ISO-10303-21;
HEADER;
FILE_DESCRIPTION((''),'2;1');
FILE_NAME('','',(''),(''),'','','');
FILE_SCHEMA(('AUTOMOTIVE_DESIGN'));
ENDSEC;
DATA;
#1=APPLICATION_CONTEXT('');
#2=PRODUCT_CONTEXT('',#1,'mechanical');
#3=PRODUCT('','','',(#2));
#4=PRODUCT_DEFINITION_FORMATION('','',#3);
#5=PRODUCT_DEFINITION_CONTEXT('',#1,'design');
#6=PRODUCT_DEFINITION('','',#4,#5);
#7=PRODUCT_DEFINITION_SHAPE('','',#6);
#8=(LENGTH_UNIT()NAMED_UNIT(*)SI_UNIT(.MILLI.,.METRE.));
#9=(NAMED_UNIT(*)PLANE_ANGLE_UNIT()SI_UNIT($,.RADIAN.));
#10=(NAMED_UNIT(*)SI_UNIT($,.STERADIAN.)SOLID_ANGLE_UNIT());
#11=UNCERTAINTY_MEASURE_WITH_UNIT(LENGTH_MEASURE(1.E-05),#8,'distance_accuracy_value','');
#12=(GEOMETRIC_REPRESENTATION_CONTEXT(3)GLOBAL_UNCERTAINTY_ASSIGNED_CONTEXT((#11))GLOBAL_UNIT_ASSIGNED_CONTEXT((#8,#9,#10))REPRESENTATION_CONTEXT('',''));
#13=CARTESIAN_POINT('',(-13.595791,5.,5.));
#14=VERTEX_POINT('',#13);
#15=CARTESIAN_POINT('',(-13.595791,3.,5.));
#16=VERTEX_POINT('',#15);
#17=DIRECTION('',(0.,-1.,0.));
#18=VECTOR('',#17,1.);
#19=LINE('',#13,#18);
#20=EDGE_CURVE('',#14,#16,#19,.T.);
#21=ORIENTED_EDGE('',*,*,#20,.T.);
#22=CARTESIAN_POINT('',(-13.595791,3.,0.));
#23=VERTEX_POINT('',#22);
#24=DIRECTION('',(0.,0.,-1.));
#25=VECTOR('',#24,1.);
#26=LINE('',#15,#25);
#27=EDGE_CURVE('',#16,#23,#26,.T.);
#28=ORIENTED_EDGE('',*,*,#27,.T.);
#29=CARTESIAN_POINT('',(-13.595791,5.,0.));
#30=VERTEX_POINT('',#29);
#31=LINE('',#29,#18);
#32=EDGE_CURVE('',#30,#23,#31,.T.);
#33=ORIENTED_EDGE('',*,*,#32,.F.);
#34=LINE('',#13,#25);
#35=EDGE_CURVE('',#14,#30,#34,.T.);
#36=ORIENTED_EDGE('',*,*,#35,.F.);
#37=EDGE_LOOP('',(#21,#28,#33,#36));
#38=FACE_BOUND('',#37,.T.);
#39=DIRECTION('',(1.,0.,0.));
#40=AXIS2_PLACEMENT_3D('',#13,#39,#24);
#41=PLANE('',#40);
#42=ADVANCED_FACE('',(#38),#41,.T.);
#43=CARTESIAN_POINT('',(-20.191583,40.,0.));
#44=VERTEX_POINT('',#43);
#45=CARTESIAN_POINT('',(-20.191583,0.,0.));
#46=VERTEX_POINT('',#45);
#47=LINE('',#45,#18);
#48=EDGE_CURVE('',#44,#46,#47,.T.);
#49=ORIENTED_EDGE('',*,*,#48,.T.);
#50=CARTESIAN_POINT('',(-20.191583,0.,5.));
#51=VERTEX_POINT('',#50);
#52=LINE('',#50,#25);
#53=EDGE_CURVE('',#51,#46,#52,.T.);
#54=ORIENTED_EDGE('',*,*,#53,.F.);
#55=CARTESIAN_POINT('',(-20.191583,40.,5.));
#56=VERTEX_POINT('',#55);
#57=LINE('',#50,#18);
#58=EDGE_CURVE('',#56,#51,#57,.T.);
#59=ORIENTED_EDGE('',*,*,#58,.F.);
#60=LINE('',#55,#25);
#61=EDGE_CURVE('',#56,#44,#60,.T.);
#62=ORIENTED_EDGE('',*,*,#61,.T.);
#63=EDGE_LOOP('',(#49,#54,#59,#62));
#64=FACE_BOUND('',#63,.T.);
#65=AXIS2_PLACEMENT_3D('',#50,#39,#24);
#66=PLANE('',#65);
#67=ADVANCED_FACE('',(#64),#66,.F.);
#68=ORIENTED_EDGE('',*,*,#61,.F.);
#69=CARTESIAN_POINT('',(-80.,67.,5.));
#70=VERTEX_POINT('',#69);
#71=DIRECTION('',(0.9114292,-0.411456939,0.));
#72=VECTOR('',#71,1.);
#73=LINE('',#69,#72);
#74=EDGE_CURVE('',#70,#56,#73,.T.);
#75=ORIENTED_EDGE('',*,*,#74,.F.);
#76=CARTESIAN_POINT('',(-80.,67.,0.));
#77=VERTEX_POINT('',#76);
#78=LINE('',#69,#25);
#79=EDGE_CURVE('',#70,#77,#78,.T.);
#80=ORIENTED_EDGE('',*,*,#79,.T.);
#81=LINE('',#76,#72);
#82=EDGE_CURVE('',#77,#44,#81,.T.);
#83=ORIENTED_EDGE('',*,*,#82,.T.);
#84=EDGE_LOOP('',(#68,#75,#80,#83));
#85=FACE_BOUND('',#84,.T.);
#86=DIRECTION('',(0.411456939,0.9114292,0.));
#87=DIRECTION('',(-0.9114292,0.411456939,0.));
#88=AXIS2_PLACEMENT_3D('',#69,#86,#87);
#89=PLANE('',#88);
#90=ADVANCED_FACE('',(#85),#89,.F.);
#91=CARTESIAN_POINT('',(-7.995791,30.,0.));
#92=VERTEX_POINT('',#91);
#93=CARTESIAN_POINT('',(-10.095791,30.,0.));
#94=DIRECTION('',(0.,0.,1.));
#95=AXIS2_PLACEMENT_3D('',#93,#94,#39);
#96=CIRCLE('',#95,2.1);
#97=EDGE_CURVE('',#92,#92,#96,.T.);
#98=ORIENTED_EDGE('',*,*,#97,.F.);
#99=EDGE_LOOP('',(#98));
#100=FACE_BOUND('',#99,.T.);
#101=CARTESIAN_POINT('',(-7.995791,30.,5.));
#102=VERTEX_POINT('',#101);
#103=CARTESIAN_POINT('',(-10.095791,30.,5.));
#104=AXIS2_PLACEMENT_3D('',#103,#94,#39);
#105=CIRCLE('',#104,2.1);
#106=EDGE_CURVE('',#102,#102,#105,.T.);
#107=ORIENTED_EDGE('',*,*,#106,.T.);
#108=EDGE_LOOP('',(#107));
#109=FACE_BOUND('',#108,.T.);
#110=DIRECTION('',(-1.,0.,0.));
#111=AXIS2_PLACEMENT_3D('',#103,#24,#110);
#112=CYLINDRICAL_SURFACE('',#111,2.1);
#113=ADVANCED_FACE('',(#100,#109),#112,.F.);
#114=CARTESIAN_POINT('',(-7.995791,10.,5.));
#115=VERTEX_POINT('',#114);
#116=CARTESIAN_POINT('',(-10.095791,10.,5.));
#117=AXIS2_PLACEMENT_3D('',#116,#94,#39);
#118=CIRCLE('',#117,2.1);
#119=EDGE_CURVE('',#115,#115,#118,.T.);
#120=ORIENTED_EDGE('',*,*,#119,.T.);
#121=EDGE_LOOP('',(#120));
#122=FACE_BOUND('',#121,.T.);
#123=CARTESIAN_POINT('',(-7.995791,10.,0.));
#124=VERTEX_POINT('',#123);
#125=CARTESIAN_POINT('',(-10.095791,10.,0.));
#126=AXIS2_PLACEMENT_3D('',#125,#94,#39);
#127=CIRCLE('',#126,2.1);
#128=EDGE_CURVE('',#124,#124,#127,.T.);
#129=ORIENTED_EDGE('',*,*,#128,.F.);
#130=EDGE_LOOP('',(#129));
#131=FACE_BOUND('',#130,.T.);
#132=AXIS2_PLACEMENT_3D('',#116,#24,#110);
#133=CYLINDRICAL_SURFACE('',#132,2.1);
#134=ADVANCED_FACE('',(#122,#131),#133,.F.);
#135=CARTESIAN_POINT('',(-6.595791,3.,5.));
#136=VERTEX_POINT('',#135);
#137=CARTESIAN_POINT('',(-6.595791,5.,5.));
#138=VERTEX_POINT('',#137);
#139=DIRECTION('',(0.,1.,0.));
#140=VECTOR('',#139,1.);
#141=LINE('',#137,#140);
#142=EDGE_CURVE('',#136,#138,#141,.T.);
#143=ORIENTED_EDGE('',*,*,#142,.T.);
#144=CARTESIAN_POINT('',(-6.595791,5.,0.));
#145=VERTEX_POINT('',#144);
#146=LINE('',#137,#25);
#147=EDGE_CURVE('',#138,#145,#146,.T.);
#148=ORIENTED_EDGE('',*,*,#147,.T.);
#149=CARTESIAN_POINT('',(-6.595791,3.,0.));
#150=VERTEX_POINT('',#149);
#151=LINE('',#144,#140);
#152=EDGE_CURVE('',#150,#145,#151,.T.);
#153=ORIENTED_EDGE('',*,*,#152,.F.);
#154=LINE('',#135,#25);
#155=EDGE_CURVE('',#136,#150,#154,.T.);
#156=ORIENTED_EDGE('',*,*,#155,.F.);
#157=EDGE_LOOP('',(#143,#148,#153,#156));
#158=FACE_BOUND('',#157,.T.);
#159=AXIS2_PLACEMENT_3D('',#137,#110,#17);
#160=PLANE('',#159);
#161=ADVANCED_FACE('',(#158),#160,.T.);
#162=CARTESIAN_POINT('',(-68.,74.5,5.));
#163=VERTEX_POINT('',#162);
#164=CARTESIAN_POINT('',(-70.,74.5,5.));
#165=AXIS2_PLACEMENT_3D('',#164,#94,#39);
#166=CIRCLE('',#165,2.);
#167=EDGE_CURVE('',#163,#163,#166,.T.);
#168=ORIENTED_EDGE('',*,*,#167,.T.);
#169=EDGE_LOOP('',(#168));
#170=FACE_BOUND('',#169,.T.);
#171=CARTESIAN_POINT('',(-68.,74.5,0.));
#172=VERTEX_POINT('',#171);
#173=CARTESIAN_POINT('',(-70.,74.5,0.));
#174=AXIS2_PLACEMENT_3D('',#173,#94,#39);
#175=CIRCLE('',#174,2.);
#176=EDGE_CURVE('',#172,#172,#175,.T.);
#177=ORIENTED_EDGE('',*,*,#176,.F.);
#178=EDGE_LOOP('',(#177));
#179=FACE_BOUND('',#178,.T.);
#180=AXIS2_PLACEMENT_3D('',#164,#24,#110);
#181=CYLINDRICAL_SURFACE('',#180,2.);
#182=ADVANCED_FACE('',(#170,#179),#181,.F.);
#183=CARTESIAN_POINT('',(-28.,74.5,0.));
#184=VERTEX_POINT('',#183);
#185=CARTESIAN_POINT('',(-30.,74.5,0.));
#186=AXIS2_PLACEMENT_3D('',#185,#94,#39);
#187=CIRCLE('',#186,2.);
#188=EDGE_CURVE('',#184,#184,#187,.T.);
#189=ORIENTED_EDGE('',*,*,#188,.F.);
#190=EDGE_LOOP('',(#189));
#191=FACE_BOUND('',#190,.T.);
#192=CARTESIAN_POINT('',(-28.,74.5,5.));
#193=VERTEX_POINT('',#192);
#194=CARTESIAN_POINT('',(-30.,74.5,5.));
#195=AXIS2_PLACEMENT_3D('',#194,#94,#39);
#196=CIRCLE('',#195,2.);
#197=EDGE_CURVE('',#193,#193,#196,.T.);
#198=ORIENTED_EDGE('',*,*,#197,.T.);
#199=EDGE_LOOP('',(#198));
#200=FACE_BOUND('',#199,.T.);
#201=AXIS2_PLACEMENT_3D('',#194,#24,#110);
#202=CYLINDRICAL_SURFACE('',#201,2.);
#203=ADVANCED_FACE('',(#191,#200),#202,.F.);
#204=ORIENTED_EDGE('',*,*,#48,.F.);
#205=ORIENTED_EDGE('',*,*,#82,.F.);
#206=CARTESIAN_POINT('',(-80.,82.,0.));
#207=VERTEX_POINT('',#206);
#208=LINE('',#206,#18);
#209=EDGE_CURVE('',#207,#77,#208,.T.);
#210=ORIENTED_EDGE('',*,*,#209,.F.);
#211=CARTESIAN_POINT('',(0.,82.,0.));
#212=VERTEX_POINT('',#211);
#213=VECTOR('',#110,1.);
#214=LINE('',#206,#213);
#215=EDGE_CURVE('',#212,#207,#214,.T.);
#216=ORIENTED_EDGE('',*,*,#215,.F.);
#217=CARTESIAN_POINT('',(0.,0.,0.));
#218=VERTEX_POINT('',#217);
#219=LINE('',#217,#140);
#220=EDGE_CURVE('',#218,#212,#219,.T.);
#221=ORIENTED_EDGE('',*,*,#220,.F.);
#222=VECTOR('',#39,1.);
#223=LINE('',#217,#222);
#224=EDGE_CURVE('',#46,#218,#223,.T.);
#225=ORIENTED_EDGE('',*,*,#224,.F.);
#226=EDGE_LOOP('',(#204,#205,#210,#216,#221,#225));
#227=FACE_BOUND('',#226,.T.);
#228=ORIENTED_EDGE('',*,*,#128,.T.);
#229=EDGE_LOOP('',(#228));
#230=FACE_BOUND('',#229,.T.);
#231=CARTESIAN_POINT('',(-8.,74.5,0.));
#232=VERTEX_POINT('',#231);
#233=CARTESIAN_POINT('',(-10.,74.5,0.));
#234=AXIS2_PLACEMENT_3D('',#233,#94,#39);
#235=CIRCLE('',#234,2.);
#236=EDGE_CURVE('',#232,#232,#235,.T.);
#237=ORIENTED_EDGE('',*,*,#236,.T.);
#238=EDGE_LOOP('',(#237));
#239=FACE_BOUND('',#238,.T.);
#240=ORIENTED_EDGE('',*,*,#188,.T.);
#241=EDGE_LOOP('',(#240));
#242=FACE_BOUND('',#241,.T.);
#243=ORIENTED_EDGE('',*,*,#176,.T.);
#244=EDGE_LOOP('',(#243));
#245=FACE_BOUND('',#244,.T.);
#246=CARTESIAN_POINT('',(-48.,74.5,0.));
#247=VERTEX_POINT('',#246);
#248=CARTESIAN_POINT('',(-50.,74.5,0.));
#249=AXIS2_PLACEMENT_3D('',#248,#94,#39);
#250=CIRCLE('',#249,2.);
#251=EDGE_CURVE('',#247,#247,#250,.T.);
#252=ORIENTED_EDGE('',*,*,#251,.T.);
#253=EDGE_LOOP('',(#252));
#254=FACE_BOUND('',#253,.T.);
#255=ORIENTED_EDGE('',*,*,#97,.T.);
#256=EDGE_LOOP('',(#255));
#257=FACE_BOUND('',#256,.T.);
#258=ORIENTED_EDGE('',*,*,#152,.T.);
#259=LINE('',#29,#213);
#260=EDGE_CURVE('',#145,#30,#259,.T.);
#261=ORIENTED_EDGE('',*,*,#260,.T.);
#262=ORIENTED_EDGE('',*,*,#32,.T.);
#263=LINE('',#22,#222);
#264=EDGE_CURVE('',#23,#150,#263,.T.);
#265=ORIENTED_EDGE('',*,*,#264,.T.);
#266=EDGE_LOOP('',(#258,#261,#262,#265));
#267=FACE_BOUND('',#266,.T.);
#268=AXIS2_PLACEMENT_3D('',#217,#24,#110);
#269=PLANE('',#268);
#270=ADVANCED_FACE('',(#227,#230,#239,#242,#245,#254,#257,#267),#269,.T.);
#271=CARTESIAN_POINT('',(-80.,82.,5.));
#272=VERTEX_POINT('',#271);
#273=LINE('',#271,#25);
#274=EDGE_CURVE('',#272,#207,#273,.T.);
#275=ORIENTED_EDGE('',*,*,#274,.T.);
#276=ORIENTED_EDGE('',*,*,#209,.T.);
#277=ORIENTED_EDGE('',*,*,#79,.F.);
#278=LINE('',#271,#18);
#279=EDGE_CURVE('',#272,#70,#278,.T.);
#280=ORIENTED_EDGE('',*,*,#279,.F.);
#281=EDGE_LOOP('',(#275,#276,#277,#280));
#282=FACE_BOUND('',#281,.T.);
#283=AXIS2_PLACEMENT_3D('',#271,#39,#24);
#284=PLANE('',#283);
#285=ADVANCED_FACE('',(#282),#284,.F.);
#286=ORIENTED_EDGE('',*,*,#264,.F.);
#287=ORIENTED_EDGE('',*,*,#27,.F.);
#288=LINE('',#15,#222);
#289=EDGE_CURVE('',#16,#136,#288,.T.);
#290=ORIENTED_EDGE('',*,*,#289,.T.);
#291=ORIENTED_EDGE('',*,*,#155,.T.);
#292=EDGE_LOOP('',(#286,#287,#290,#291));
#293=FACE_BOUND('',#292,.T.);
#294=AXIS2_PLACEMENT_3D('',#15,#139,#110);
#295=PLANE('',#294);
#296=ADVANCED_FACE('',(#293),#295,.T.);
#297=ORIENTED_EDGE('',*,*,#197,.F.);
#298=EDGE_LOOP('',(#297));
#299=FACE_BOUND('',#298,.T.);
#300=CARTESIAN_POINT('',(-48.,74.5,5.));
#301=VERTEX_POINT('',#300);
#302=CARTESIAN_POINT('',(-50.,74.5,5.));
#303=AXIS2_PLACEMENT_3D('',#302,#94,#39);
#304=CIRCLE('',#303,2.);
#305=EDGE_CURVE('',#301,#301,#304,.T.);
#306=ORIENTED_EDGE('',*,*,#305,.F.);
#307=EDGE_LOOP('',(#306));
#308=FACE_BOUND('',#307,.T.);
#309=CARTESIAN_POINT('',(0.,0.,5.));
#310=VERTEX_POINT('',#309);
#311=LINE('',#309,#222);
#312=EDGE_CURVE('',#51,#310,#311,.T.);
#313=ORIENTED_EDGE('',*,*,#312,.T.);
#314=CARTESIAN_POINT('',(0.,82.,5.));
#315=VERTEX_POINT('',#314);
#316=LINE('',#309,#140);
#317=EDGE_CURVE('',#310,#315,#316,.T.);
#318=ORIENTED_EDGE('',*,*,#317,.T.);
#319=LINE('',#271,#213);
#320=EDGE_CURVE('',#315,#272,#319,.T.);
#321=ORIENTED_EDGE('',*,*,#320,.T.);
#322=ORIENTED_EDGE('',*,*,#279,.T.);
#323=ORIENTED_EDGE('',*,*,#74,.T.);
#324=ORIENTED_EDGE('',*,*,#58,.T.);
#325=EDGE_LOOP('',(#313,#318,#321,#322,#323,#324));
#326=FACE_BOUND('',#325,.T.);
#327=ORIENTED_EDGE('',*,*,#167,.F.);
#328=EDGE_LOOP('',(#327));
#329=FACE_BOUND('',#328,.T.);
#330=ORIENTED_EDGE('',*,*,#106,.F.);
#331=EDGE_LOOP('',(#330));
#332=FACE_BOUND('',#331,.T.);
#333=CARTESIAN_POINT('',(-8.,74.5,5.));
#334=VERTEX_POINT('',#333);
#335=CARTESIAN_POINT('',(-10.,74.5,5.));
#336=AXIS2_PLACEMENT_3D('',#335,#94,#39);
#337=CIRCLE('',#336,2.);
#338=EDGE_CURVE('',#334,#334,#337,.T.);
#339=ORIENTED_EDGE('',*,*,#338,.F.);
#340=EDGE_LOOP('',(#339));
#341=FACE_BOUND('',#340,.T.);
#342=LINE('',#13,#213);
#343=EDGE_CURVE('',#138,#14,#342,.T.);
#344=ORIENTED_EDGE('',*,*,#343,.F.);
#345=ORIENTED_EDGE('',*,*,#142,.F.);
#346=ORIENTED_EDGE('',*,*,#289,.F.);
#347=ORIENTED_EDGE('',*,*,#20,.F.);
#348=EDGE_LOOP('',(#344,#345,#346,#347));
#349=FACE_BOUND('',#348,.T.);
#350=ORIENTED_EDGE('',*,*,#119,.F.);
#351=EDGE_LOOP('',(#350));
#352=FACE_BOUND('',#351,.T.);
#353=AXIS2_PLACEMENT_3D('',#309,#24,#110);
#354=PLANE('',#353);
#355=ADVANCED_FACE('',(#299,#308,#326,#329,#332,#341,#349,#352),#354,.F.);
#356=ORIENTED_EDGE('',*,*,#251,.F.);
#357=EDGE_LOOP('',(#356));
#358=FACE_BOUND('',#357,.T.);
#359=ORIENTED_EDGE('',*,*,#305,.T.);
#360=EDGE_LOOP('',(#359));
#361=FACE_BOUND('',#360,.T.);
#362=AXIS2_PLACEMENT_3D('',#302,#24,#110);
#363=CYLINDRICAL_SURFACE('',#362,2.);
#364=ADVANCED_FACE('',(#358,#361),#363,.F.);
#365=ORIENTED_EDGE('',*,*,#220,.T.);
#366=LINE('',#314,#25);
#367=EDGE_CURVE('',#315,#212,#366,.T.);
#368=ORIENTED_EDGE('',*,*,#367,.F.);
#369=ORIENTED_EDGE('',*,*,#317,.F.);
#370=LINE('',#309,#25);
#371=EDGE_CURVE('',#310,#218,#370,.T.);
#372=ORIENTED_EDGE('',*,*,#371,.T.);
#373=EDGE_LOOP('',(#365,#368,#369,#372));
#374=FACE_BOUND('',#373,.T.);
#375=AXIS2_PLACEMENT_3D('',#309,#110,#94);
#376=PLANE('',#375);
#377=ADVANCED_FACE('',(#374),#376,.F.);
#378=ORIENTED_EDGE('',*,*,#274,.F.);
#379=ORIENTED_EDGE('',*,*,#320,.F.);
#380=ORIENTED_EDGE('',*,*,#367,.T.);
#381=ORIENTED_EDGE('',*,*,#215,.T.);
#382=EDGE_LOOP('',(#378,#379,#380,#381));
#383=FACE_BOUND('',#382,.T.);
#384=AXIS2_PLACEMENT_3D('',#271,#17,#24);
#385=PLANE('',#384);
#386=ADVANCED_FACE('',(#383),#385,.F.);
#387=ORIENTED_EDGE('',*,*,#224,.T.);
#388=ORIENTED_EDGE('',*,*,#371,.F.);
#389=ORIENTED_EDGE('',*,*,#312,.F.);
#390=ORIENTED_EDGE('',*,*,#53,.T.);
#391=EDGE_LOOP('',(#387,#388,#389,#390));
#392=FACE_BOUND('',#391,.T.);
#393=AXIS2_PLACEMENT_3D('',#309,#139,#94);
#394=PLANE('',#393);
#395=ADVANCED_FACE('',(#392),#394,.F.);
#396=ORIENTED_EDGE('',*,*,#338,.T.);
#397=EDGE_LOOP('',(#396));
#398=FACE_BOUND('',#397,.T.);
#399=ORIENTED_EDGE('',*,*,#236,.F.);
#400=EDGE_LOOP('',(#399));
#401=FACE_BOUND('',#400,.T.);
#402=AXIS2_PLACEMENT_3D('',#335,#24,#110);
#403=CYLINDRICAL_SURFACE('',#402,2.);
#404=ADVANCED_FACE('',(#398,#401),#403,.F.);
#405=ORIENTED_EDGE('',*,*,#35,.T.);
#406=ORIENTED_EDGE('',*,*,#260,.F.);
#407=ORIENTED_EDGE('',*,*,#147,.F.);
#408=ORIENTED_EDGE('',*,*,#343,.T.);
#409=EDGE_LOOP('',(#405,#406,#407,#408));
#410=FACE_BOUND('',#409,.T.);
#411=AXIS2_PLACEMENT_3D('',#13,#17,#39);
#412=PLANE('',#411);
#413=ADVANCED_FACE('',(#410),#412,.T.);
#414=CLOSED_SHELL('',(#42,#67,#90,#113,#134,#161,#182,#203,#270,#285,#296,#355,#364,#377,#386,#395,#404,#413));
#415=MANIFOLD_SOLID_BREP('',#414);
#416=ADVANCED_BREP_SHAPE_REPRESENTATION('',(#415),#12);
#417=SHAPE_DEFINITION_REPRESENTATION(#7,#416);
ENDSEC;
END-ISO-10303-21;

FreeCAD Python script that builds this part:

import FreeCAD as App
import Part
import Sketcher
Q = App.Units.Quantity

doc = App.newDocument("Part")
body = doc.addObject("PartDesign::Body", "Body")

# Sketch on XY plane
sketch1 = doc.addObject("Sketcher::SketchObject", "Sketch")
body.addObject(sketch1)
sketch1.AttachmentSupport = (doc.XY_Plane, [""])
sketch1.MapMode = "FlatFace"
sketch1.addGeometry(Part.LineSegment(App.Vector(0, 0, 0), App.Vector(0, 82, 0)), False)
sketch1.addGeometry(Part.LineSegment(App.Vector(0, 82, 0), App.Vector(-80, 82, 0)), False)
sketch1.addGeometry(Part.LineSegment(App.Vector(-80, 82, 0), App.Vector(-80, 67, 0)), False)
sketch1.addGeometry(Part.LineSegment(App.Vector(-80, 67, 0), App.Vector(-20.2, 40, 0)), False)
sketch1.addGeometry(Part.LineSegment(App.Vector(-20.2, 40, 0), App.Vector(-20.2, 0, 0)), False)
sketch1.addGeometry(Part.LineSegment(App.Vector(-20.2, 0, 0), App.Vector(0, 0, 0)), False)
sketch1.addGeometry(Part.LineSegment(App.Vector(-6.6, 3, 0), App.Vector(-13.6, 3, 0)), False)
sketch1.addGeometry(Part.LineSegment(App.Vector(-13.6, 3, 0), App.Vector(-13.6, 5, 0)), False)
sketch1.addGeometry(Part.LineSegment(App.Vector(-13.6, 5, 0), App.Vector(-6.6, 5, 0)), False)
sketch1.addGeometry(Part.LineSegment(App.Vector(-6.6, 5, 0), App.Vector(-6.6, 3, 0)), False)
sketch1.addGeometry(Part.Circle(App.Vector(-10.1, 10, 0), App.Vector(0, 0, 1), 2.1), False)
sketch1.addGeometry(Part.Circle(App.Vector(-10.1, 30, 0), App.Vector(0, 0, 1), 2.1), False)
sketch1.addGeometry(Part.Circle(App.Vector(-70, 74.5, 0), App.Vector(0, 0, 1), 2), False)
sketch1.addGeometry(Part.Circle(App.Vector(-50, 74.5, 0), App.Vector(0, 0, 1), 2), False)
sketch1.addGeometry(Part.Circle(App.Vector(-30, 74.5, 0), App.Vector(0, 0, 1), 2), False)
sketch1.addGeometry(Part.Circle(App.Vector(-10, 74.5, 0), App.Vector(0, 0, 1), 2), False)
sketch1.addConstraint(Sketcher.Constraint("Coincident", 0, 2, 1, 1))
sketch1.addConstraint(Sketcher.Constraint("Coincident", 1, 2, 2, 1))
sketch1.addConstraint(Sketcher.Constraint("Coincident", 2, 2, 3, 1))
sketch1.addConstraint(Sketcher.Constraint("Coincident", 3, 2, 4, 1))
sketch1.addConstraint(Sketcher.Constraint("Coincident", 4, 2, 5, 1))
sketch1.addConstraint(Sketcher.Constraint("Coincident", 5, 2, 0, 1))
sketch1.addConstraint(Sketcher.Constraint("Coincident", 6, 2, 7, 1))
sketch1.addConstraint(Sketcher.Constraint("Coincident", 7, 2, 8, 1))
sketch1.addConstraint(Sketcher.Constraint("Coincident", 8, 2, 9, 1))
sketch1.addConstraint(Sketcher.Constraint("Coincident", 9, 2, 6, 1))
sketch1.addConstraint(Sketcher.Constraint("Vertical", 0))
sketch1.addConstraint(Sketcher.Constraint("Horizontal", 1))
sketch1.addConstraint(Sketcher.Constraint("Vertical", 2))
sketch1.addConstraint(Sketcher.Constraint("Vertical", 4))
sketch1.addConstraint(Sketcher.Constraint("Horizontal", 5))
sketch1.addConstraint(Sketcher.Constraint("Horizontal", 6))
sketch1.addConstraint(Sketcher.Constraint("Vertical", 7))
sketch1.addConstraint(Sketcher.Constraint("Horizontal", 8))
sketch1.addConstraint(Sketcher.Constraint("Vertical", 9))
sketch1.addConstraint(Sketcher.Constraint("Coincident", 5, 2, -1, 1))
sketch1.addConstraint(Sketcher.Constraint("Equal", 10, 11))
sketch1.addConstraint(Sketcher.Constraint("Equal", 12, 13))
sketch1.addConstraint(Sketcher.Constraint("Equal", 13, 14))
sketch1.addConstraint(Sketcher.Constraint("Equal", 14, 15))
sketch1.addConstraint(Sketcher.Constraint("Horizontal", 12, 3, 13, 3))
sketch1.addConstraint(Sketcher.Constraint("Horizontal", 13, 3, 14, 3))
sketch1.addConstraint(Sketcher.Constraint("Horizontal", 14, 3, 15, 3))
sketch1.addConstraint(Sketcher.Constraint("Vertical", 10, 3, 11, 3))
sketch1.addConstraint(Sketcher.Constraint("Diameter", 12, Q("4 mm")))
sketch1.addConstraint(Sketcher.Constraint("Diameter", 10, Q("4.2 mm")))
sketch1.addConstraint(Sketcher.Constraint("DistanceX", 1, 2, 1, 1, Q("80 mm")))
sketch1.addConstraint(Sketcher.Constraint("DistanceX", 6, 2, 6, 1, Q("7 mm")))
sketch1.addConstraint(Sketcher.Constraint("DistanceY", 0, 1, 0, 2, Q("82 mm")))
sketch1.addConstraint(Sketcher.Constraint("DistanceY", 2, 2, 2, 1, Q("15 mm")))
sketch1.addConstraint(Sketcher.Constraint("DistanceY", 4, 2, 4, 1, Q("40 mm")))
sketch1.addConstraint(Sketcher.Constraint("DistanceY", 7, 1, 7, 2, Q("2 mm")))
sketch1.addConstraint(Sketcher.Constraint("DistanceY", -1, 1, 10, 3, Q("10 mm")))
sketch1.addConstraint(Sketcher.Constraint("DistanceY", -1, 1, 11, 3, Q("30 mm")))
sketch1.addConstraint(Sketcher.Constraint("DistanceX", 12, 3, -1, 1, Q("70 mm")))
sketch1.addConstraint(Sketcher.Constraint("DistanceX", 13, 3, -1, 1, Q("50 mm")))
sketch1.addConstraint(Sketcher.Constraint("DistanceX", 14, 3, -1, 1, Q("30 mm")))
sketch1.addConstraint(Sketcher.Constraint("DistanceX", 15, 3, -1, 1, Q("10 mm")))
sketch1.addConstraint(Sketcher.Constraint("DistanceY", -1, 1, 6, 2, Q("3 mm")))
sketch1.addConstraint(Sketcher.Constraint("DistanceY", -1, 1, 12, 3, Q("74.5 mm")))
sketch1.addConstraint(Sketcher.Constraint("DistanceX", 6, 2, 10, 3, Q("3.5 mm")))
sketch1.addConstraint(Sketcher.Constraint("DistanceX", 5, 1, 5, 2, Q("20.191583 mm")))
sketch1.addConstraint(Sketcher.Constraint("DistanceX", 10, 3, -1, 1, Q("10.095791 mm")))
pad1 = doc.addObject("PartDesign::Pad", "Pad")
body.addObject(pad1)
pad1.Profile = sketch1
pad1.Length = 5

doc.recompute()
